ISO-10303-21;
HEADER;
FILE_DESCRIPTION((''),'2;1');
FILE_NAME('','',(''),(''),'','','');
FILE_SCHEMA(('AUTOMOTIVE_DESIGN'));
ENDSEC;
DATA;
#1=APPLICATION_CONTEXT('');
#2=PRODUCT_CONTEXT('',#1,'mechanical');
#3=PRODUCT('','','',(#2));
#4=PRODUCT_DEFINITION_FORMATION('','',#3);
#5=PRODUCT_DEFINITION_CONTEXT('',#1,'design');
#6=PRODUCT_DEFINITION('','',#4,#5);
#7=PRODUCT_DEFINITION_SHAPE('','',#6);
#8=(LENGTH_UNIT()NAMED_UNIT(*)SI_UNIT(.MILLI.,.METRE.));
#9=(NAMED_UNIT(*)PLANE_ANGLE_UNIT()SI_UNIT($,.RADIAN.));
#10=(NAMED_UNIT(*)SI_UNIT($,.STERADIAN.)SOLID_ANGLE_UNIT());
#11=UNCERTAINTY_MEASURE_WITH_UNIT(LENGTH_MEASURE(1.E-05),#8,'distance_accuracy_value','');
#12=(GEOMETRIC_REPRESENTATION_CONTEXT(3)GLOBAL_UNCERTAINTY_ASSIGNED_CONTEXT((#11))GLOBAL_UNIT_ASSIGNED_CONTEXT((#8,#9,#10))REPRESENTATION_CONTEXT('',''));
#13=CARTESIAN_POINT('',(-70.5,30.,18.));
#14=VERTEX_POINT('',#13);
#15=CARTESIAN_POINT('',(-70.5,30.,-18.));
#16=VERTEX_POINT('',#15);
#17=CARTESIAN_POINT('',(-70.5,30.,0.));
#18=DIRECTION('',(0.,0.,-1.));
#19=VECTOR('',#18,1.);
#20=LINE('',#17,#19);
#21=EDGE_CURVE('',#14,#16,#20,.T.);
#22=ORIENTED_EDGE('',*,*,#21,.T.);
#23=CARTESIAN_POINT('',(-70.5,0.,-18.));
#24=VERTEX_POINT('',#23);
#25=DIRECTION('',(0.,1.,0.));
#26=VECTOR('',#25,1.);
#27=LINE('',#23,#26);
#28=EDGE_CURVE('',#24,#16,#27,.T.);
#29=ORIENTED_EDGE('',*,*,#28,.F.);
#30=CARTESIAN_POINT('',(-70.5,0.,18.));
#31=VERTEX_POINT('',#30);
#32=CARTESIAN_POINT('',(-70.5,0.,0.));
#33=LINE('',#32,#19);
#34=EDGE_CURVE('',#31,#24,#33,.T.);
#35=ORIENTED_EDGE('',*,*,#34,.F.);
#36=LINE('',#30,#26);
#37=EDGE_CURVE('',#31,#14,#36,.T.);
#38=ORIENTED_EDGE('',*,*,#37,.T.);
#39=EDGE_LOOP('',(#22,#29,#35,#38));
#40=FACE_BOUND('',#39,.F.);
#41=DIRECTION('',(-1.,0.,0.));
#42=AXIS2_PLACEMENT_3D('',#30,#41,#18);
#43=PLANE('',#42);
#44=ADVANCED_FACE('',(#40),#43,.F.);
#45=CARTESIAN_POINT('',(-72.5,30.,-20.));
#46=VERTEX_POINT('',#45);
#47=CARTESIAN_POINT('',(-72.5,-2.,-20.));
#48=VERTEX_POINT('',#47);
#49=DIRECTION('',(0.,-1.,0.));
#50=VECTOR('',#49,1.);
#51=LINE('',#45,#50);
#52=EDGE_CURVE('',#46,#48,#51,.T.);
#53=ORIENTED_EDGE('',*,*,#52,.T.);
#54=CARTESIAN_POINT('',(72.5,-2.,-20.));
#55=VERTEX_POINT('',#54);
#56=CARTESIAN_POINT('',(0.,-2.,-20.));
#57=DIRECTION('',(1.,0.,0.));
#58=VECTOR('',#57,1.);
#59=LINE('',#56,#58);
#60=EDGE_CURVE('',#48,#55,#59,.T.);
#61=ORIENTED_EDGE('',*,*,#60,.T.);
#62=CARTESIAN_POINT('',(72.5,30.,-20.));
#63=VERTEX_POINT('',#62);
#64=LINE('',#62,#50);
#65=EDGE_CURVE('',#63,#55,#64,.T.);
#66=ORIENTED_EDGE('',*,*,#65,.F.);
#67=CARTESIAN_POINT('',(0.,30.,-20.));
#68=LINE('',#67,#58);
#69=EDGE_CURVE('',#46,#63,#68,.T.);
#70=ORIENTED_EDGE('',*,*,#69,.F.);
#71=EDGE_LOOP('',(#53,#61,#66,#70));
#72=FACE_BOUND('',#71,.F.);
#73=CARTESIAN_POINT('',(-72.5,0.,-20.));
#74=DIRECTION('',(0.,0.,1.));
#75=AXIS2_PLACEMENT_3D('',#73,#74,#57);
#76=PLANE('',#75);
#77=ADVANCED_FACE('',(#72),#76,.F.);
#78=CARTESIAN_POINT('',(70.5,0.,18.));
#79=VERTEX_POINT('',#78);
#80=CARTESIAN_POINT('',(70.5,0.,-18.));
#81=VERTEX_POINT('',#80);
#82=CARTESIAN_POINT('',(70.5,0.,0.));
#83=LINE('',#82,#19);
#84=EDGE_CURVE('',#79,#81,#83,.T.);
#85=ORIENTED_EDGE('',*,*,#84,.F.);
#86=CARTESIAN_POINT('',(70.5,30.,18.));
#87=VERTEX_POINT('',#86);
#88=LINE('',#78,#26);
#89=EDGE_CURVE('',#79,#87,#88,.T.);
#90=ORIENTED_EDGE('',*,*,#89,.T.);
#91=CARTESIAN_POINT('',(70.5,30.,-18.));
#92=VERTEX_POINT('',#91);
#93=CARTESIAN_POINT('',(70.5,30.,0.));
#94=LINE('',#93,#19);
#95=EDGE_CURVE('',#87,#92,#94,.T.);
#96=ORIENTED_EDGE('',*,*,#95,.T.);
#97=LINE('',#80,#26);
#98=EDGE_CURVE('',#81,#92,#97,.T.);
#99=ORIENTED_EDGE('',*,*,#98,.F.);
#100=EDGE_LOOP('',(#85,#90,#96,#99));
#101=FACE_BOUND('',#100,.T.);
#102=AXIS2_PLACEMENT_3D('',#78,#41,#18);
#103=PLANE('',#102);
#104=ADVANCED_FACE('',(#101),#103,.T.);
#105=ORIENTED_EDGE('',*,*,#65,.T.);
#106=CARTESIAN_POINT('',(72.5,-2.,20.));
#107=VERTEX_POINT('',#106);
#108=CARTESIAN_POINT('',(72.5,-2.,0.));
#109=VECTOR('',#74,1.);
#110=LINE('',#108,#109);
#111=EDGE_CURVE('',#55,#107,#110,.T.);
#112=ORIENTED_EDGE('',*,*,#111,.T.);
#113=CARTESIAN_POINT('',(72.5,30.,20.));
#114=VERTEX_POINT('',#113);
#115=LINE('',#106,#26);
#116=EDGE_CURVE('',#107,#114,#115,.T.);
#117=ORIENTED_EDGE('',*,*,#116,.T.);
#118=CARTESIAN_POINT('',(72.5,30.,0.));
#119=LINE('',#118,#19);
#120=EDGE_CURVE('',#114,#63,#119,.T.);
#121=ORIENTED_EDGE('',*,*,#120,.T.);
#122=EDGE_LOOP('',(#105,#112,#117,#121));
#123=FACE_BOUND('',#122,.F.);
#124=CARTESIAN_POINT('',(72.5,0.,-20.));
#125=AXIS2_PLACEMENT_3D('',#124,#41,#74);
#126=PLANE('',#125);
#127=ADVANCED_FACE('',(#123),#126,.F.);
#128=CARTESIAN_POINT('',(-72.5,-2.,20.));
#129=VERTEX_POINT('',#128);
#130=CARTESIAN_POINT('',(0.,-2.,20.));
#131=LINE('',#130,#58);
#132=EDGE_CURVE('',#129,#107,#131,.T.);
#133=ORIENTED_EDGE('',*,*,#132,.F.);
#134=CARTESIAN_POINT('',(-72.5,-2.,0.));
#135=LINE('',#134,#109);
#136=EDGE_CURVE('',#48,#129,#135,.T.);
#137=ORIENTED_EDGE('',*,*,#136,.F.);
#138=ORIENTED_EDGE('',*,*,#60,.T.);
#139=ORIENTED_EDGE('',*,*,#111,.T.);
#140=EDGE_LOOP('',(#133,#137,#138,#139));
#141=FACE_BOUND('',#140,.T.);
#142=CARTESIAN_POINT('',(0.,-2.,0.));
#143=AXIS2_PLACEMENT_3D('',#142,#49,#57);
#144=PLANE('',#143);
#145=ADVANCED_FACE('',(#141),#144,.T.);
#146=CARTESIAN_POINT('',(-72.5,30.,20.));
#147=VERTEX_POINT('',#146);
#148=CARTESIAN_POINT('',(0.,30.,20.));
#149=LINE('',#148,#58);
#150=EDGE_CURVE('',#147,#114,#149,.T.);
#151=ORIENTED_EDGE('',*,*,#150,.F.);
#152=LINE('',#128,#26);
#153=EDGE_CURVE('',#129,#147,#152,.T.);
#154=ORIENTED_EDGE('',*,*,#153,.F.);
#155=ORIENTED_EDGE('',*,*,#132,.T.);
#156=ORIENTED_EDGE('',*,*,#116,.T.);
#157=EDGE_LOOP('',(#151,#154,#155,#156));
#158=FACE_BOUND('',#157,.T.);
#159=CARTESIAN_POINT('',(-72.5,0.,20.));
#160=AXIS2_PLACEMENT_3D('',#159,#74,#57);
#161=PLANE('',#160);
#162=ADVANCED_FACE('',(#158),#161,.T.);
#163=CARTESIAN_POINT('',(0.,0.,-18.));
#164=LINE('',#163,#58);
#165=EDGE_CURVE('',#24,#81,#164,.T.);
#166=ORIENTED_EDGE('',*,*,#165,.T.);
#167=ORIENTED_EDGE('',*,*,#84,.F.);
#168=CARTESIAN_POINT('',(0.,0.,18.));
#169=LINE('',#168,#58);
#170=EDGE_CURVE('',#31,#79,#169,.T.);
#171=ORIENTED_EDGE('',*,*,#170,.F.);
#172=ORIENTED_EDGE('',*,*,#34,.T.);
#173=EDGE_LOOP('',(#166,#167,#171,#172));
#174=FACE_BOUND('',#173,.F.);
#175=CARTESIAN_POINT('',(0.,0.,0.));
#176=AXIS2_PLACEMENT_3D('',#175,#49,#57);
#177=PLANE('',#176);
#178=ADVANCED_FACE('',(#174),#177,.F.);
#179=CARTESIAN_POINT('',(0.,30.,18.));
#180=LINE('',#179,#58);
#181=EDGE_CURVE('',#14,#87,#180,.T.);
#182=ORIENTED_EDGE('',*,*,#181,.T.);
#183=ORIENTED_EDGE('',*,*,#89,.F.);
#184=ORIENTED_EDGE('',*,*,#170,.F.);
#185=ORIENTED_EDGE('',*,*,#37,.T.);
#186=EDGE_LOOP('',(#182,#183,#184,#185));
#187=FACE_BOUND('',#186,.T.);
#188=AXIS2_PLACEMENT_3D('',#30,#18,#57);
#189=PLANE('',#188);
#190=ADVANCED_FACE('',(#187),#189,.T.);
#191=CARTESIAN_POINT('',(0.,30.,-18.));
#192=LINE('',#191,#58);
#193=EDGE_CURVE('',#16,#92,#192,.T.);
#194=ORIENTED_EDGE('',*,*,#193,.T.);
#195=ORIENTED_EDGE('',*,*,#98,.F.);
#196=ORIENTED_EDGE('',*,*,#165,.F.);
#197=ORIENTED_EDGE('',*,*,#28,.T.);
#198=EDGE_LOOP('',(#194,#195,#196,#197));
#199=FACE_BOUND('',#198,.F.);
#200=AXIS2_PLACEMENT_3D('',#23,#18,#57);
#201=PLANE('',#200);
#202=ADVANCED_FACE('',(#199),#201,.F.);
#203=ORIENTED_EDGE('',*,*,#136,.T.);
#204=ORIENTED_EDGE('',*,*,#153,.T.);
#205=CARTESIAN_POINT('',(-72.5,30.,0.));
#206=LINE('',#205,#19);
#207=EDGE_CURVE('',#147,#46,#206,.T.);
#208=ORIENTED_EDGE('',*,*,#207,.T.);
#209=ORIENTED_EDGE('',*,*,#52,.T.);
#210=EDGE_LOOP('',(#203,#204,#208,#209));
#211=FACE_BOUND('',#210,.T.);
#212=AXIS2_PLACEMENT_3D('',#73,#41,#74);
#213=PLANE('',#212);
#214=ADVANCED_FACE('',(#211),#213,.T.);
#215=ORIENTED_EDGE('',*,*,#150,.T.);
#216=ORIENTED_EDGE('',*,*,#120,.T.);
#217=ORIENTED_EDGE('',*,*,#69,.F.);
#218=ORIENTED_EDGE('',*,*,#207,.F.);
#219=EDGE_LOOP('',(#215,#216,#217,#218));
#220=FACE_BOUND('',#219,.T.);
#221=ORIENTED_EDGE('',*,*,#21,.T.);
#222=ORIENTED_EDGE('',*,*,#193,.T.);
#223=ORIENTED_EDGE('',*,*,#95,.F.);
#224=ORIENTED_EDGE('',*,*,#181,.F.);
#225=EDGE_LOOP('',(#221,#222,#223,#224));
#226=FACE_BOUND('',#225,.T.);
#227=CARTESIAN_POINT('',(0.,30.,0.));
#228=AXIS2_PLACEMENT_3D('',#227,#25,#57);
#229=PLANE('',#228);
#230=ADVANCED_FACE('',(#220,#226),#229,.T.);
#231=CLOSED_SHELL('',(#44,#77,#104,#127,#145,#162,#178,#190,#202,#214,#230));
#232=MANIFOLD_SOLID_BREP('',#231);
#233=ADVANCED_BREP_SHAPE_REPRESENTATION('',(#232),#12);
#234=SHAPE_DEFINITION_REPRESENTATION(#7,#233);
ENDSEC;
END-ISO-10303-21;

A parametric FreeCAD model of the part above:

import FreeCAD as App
import Part
import Sketcher

V = App.Vector
Q = App.Units.Quantity

doc = App.newDocument("Part")
params = doc.addObject("Spreadsheet::Sheet", "Params")
for row, (alias, value) in enumerate([
    ("sketch1_width", "145 mm"),
    ("sketch1_width2", "141 mm"),
    ("sketch1_height", "40 mm"),
    ("sketch1_height2", "36 mm"),
    ("pad1_length", "30 mm"),
    ("sketch2_width", "145 mm"),
    ("sketch2_height", "40 mm"),
    ("pad2_length", "2 mm"),
], start=1):
    params.set(f"A{row}", alias)
    params.set(f"B{row}", "=" + value)
    params.setAlias(f"B{row}", alias)

body = doc.addObject("PartDesign::Body", "Body")

sketch1 = body.newObject("Sketcher::SketchObject", "Sketch")
sketch1.AttachmentSupport = (doc.getObject("XZ_Plane"), [""])
sketch1.MapMode = "FlatFace"
sketch1.addGeometry([
    Part.LineSegment(V(-72, -20, 0), V(-72, 20, 0)),
    Part.LineSegment(V(-72, 20, 0), V(72, 20, 0)),
    Part.LineSegment(V(72, 20, 0), V(72, -20, 0)),
    Part.LineSegment(V(72, -20, 0), V(-72, -20, 0)),
    Part.LineSegment(V(70, 18, 0), V(-70, 18, 0)),
    Part.LineSegment(V(-70, 18, 0), V(-70, -18, 0)),
    Part.LineSegment(V(-70, -18, 0), V(70, -18, 0)),
    Part.LineSegment(V(70, -18, 0), V(70, 18, 0)),
], False)
sketch1.addConstraint([
    Sketcher.Constraint("Coincident", 0, 2, 1, 1),
    Sketcher.Constraint("Coincident", 1, 2, 2, 1),
    Sketcher.Constraint("Coincident", 2, 2, 3, 1),
    Sketcher.Constraint("Coincident", 3, 2, 0, 1),
    Sketcher.Constraint("Coincident", 4, 2, 5, 1),
    Sketcher.Constraint("Coincident", 5, 2, 6, 1),
    Sketcher.Constraint("Coincident", 6, 2, 7, 1),
    Sketcher.Constraint("Coincident", 7, 2, 4, 1),
    Sketcher.Constraint("Vertical", 0),
    Sketcher.Constraint("Horizontal", 1),
    Sketcher.Constraint("Vertical", 2),
    Sketcher.Constraint("Horizontal", 3),
    Sketcher.Constraint("Horizontal", 4),
    Sketcher.Constraint("Vertical", 5),
    Sketcher.Constraint("Horizontal", 6),
    Sketcher.Constraint("Vertical", 7),
    Sketcher.Constraint("Symmetric", 0, 2, 2, 2, -1, 1),
    Sketcher.Constraint("Symmetric", 4, 2, 6, 2, -1, 1),
    Sketcher.Constraint("DistanceX", 1, 1, 1, 2, Q("145 mm")),
    Sketcher.Constraint("DistanceX", 4, 2, 4, 1, Q("141 mm")),
    Sketcher.Constraint("DistanceY", 0, 1, 0, 2, Q("40 mm")),
    Sketcher.Constraint("DistanceY", 5, 2, 5, 1, Q("36 mm")),
])
sketch1.setExpression("Constraints[18]", "Params.sketch1_width")
sketch1.setExpression("Constraints[19]", "Params.sketch1_width2")
sketch1.setExpression("Constraints[20]", "Params.sketch1_height")
sketch1.setExpression("Constraints[21]", "Params.sketch1_height2")
pad1 = body.newObject("PartDesign::Pad", "Pad")
pad1.Profile = sketch1
pad1.setExpression("Length", "Params.pad1_length")
pad1.Reversed = True

sketch2 = body.newObject("Sketcher::SketchObject", "Sketch001")
sketch2.AttachmentSupport = (doc.getObject("XZ_Plane"), [""])
sketch2.MapMode = "FlatFace"
sketch2.addGeometry([
    Part.LineSegment(V(-72, 20, 0), V(-72, -20, 0)),
    Part.LineSegment(V(-72, -20, 0), V(72, -20, 0)),
    Part.LineSegment(V(72, -20, 0), V(72, 20, 0)),
    Part.LineSegment(V(72, 20, 0), V(-72, 20, 0)),
], False)
sketch2.addConstraint([
    Sketcher.Constraint("Coincident", 0, 2, 1, 1),
    Sketcher.Constraint("Coincident", 1, 2, 2, 1),
    Sketcher.Constraint("Coincident", 2, 2, 3, 1),
    Sketcher.Constraint("Coincident", 3, 2, 0, 1),
    Sketcher.Constraint("Vertical", 0),
    Sketcher.Constraint("Horizontal", 1),
    Sketcher.Constraint("Vertical", 2),
    Sketcher.Constraint("Horizontal", 3),
    Sketcher.Constraint("Symmetric", 0, 2, 2, 2, -1, 1),
    Sketcher.Constraint("DistanceX", 1, 1, 1, 2, Q("145 mm")),
    Sketcher.Constraint("DistanceY", 0, 2, 0, 1, Q("40 mm")),
])
sketch2.setExpression("Constraints[9]", "Params.sketch2_width")
sketch2.setExpression("Constraints[10]", "Params.sketch2_height")
pad2 = body.newObject("PartDesign::Pad", "Pad001")
pad2.Profile = sketch2
pad2.setExpression("Length", "Params.pad2_length")

doc.recompute()
